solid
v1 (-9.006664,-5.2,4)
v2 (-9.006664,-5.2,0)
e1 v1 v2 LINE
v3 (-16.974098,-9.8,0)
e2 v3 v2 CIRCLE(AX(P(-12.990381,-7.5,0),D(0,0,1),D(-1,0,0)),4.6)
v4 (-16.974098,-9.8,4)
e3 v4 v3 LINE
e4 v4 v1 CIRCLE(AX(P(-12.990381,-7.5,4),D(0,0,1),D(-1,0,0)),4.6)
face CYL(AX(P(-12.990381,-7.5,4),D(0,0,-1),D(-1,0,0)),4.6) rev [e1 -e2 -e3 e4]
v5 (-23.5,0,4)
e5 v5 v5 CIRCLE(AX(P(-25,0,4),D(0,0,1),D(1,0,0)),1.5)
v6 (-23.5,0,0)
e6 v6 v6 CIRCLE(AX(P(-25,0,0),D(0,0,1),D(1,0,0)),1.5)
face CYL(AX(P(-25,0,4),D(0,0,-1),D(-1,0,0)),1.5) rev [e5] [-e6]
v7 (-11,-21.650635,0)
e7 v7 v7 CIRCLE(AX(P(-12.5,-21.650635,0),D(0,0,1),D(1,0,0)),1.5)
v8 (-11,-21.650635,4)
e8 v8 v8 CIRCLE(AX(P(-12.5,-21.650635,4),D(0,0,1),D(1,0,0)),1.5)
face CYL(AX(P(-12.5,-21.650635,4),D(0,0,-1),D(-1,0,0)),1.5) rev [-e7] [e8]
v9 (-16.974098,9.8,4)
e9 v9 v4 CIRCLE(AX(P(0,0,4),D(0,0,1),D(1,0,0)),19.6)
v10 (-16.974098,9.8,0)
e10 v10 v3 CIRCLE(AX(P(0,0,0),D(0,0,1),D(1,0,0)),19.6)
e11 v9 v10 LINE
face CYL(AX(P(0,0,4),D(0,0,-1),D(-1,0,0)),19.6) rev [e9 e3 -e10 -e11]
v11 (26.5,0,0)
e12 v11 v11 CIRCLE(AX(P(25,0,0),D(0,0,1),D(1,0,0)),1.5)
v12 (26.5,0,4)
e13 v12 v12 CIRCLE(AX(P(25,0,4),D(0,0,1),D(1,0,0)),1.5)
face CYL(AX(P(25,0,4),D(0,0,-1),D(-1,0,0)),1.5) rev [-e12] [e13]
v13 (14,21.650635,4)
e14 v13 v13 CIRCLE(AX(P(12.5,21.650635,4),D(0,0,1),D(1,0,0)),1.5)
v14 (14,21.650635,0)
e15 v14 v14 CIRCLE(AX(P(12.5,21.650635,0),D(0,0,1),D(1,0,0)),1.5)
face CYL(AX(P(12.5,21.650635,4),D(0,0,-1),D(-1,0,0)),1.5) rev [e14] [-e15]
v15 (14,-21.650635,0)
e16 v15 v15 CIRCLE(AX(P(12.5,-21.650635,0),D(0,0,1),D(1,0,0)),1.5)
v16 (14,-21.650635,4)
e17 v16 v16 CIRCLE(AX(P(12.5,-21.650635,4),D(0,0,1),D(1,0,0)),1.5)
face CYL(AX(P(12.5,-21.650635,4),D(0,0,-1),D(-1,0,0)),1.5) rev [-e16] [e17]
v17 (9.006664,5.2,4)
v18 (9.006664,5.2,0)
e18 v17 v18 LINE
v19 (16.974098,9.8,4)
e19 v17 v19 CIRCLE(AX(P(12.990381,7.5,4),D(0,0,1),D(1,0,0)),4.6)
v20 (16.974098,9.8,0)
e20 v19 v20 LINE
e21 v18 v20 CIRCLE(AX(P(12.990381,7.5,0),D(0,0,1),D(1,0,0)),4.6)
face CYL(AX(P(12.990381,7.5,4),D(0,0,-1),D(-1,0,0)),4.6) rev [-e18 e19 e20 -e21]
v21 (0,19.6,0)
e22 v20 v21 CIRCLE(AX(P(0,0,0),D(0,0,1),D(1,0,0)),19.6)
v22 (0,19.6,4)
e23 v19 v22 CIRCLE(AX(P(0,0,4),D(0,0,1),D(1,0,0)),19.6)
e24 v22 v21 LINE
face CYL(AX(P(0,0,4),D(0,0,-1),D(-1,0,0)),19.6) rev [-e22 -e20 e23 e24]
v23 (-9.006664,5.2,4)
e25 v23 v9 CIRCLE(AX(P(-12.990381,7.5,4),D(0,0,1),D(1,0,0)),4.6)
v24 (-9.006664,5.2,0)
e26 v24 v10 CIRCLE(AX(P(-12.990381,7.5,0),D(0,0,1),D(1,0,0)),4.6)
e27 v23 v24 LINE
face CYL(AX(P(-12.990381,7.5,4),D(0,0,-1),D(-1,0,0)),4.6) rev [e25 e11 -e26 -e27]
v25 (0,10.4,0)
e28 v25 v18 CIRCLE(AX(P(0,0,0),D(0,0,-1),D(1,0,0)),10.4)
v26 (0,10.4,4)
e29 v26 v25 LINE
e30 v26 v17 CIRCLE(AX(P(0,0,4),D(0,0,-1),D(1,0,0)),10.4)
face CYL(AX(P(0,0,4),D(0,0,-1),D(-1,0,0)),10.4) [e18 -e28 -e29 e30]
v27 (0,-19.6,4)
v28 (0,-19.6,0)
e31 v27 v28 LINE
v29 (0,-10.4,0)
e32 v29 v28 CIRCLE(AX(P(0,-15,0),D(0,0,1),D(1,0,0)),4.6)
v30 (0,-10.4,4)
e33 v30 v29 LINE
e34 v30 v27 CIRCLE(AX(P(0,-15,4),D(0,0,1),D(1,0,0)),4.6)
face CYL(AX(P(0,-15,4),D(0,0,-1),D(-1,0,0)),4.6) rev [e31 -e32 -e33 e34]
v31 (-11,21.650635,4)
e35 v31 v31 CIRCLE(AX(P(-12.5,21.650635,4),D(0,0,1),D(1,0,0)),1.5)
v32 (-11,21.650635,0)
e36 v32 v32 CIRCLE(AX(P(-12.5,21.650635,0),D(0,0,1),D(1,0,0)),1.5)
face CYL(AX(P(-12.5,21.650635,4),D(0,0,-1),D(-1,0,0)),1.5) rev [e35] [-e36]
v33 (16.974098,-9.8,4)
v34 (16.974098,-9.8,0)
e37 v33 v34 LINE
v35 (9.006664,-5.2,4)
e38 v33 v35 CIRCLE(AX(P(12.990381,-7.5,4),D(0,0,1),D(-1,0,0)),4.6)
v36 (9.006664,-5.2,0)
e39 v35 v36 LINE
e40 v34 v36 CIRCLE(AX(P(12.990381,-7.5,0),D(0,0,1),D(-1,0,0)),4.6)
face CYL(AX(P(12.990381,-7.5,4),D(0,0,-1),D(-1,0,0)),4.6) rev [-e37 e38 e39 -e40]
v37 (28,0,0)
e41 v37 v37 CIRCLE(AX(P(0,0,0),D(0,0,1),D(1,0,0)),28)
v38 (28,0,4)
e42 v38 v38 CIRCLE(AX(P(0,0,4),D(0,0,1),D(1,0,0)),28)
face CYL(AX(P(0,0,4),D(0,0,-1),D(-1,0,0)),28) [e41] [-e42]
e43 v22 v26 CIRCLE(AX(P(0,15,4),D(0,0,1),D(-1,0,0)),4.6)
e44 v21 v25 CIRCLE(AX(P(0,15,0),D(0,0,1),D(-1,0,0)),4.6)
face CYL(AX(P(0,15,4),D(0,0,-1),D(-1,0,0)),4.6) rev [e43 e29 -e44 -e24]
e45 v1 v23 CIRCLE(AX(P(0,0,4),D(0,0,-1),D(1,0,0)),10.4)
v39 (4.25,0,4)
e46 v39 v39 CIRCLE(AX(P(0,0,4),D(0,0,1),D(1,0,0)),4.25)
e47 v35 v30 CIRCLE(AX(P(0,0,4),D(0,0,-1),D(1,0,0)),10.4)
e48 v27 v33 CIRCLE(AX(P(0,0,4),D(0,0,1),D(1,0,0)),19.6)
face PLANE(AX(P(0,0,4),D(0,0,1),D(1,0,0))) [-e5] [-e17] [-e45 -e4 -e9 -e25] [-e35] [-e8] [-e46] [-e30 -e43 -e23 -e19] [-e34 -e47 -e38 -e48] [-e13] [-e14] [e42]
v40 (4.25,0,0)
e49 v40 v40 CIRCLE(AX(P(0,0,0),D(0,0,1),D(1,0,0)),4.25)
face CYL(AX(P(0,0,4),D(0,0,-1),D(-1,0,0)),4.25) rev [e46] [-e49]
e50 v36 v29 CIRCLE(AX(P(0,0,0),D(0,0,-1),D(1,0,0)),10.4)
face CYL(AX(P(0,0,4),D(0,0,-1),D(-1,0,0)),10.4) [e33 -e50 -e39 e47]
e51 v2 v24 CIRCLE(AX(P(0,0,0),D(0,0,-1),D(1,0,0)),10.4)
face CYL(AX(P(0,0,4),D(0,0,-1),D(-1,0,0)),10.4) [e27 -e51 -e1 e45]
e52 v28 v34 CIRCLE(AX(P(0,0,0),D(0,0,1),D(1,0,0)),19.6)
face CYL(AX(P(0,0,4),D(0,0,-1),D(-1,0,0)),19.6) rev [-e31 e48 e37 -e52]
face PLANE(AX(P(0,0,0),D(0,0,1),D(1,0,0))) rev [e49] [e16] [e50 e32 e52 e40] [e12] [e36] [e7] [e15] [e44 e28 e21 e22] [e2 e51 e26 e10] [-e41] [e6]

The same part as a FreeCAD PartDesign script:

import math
import FreeCAD as App
import Part
import Sketcher
from FreeCAD import Vector
Q = App.Units.Quantity

doc = App.newDocument("Part")
body = doc.addObject("PartDesign::Body", "Body")

# Sketch on XY plane
sketch1 = doc.addObject("Sketcher::SketchObject", "Sketch")
body.addObject(sketch1)
sketch1.AttachmentSupport = (doc.XY_Plane, [""])
sketch1.MapMode = "FlatFace"
sketch1.addGeometry([
    Part.Circle(Vector(0, 0, 0), Vector(0, 0, 1), 28),  # 0
    Part.Circle(Vector(-12.5, -21.650635, 0), Vector(0, 0, 1), 1.5),  # 1
    Part.Circle(Vector(12.5, -21.650635, 0), Vector(0, 0, 1), 1.5),  # 2
    Part.ArcOfCircle(Part.Circle(Vector(0, 0, 0), Vector(0, 0, 1), 10.4), math.radians(-90), math.radians(-30)),  # 3
    Part.ArcOfCircle(Part.Circle(Vector(12.990381, -7.5, 0), Vector(0, 0, 1), 4.6), math.radians(-30), math.radians(150)),  # 4
    Part.ArcOfCircle(Part.Circle(Vector(0, 0, 0), Vector(0, 0, 1), 19.6), math.radians(-90), math.radians(-30)),  # 5
    Part.ArcOfCircle(Part.Circle(Vector(0, -15, 0), Vector(0, 0, 1), 4.6), math.radians(90), math.radians(270)),  # 6
    Part.Circle(Vector(-25, 0, 0), Vector(0, 0, 1), 1.5),  # 7
    Part.ArcOfCircle(Part.Circle(Vector(-12.990381, 7.5, 0), Vector(0, 0, 1), 4.6), math.radians(-30), math.radians(150)),  # 8
    Part.ArcOfCircle(Part.Circle(Vector(0, 0, 0), Vector(0, 0, 1), 10.4), math.radians(150), math.radians(210)),  # 9
    Part.ArcOfCircle(Part.Circle(Vector(-12.990381, -7.5, 0), Vector(0, 0, 1), 4.6), math.radians(-150), math.radians(30)),  # 10
    Part.ArcOfCircle(Part.Circle(Vector(0, 0, 0), Vector(0, 0, 1), 19.6), math.radians(150), math.radians(210)),  # 11
    Part.Circle(Vector(-12.5, 21.650635, 0), Vector(0, 0, 1), 1.5),  # 12
    Part.Circle(Vector(0, 0, 0), Vector(0, 0, 1), 4.25),  # 13
    Part.ArcOfCircle(Part.Circle(Vector(12.990381, 7.5, 0), Vector(0, 0, 1), 4.6), math.radians(-150), math.radians(30)),  # 14
    Part.ArcOfCircle(Part.Circle(Vector(0, 0, 0), Vector(0, 0, 1), 10.4), math.radians(30), math.radians(90)),  # 15
    Part.ArcOfCircle(Part.Circle(Vector(0, 15, 0), Vector(0, 0, 1), 4.6), math.radians(90), math.radians(270)),  # 16
    Part.ArcOfCircle(Part.Circle(Vector(0, 0, 0), Vector(0, 0, 1), 19.6), math.radians(30), math.radians(90)),  # 17
    Part.Circle(Vector(25, 0, 0), Vector(0, 0, 1), 1.5),  # 18
    Part.Circle(Vector(12.5, 21.650635, 0), Vector(0, 0, 1), 1.5),  # 19
], False)
sketch1.addConstraint([
    Sketcher.Constraint("Tangent", 3, 2, 4, 2),
    Sketcher.Constraint("Tangent", 4, 1, 5, 2),
    Sketcher.Constraint("Tangent", 5, 1, 6, 2),
    Sketcher.Constraint("Tangent", 6, 1, 3, 1),
    Sketcher.Constraint("Tangent", 8, 1, 9, 1),
    Sketcher.Constraint("Tangent", 9, 2, 10, 2),
    Sketcher.Constraint("Tangent", 10, 1, 11, 2),
    Sketcher.Constraint("Tangent", 11, 1, 8, 2),
    Sketcher.Constraint("Tangent", 14, 1, 15, 1),
    Sketcher.Constraint("Tangent", 15, 2, 16, 2),
    Sketcher.Constraint("Tangent", 16, 1, 17, 2),
    Sketcher.Constraint("Tangent", 17, 1, 14, 2),
    Sketcher.Constraint("Coincident", 0, 3, -1, 1),
    Sketcher.Constraint("Coincident", 3, 3, -1, 1),
    Sketcher.Constraint("Coincident", 5, 3, -1, 1),
    Sketcher.Constraint("Coincident", 9, 3, -1, 1),
    Sketcher.Constraint("Coincident", 11, 3, -1, 1),
    Sketcher.Constraint("Coincident", 13, 3, -1, 1),
    Sketcher.Constraint("Coincident", 15, 3, -1, 1),
    Sketcher.Constraint("Coincident", 17, 3, -1, 1),
    Sketcher.Constraint("Equal", 1, 2),
    Sketcher.Constraint("Equal", 2, 7),
    Sketcher.Constraint("Equal", 6, 8),
    Sketcher.Constraint("Equal", 3, 9),
    Sketcher.Constraint("Equal", 7, 12),
    Sketcher.Constraint("Equal", 10, 14),
    Sketcher.Constraint("Equal", 9, 15),
    Sketcher.Constraint("Equal", 12, 18),
    Sketcher.Constraint("Equal", 18, 19),
    Sketcher.Constraint("Symmetric", 2, 3, 12, 3, -1, 1),
    Sketcher.Constraint("Symmetric", 7, 3, 18, 3, -1, 1),
    Sketcher.Constraint("Symmetric", 1, 3, 19, 3, -1, 1),
    Sketcher.Constraint("Symmetric", 1, 3, 2, 3, -2),
    Sketcher.Constraint("PointOnObject", 6, 3, -2),
    Sketcher.Constraint("PointOnObject", 7, 3, -1),
    Sketcher.Constraint("PointOnObject", 16, 3, -2),
    Sketcher.Constraint("Horizontal", 4, 3, 10, 3),
    Sketcher.Constraint("Horizontal", 8, 3, 14, 3),
    Sketcher.Constraint("Vertical", 8, 3, 10, 3),
    Sketcher.Constraint("Diameter", 0, Q("56 mm")),
    Sketcher.Constraint("Diameter", 1, Q("3 mm")),
    Sketcher.Constraint("Diameter", 13, Q("8.5 mm")),
    Sketcher.Constraint("Radius", 3, Q("10.4 mm")),
    Sketcher.Constraint("Radius", 4, Q("4.6 mm")),
    Sketcher.Constraint("DistanceX", 7, 3, -1, 1, Q("25 mm")),
    Sketcher.Constraint("DistanceX", 1, 3, 2, 3, Q("25 mm")),
    Sketcher.Constraint("DistanceY", 10, 3, 8, 3, Q("15 mm")),
    Sketcher.Constraint("DistanceY", 1, 3, -1, 1, Q("21.650635 mm")),
])
pad1 = doc.addObject("PartDesign::Pad", "Pad")
body.addObject(pad1)
pad1.Profile = sketch1
pad1.Length = 4

doc.recompute()
